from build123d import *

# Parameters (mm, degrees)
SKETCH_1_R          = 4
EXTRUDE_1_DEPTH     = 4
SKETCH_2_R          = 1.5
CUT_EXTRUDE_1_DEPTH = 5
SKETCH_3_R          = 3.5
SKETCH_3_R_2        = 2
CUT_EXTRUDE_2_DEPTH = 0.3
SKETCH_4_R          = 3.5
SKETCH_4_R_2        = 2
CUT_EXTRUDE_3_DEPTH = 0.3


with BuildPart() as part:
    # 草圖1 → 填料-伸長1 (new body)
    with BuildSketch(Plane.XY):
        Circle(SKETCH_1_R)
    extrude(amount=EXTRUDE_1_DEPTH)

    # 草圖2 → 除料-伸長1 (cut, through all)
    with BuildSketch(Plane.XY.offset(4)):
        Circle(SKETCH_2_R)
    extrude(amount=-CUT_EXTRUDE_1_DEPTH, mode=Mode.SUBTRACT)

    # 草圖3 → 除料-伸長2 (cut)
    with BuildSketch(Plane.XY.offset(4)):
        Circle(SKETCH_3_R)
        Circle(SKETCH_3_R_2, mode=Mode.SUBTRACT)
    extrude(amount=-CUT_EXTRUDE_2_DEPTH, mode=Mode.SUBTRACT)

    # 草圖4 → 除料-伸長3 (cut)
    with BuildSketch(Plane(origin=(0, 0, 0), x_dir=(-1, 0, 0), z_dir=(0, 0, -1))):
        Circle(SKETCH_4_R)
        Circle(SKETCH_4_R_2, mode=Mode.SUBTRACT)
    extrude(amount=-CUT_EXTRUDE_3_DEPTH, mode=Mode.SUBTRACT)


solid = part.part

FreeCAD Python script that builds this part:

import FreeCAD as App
import Part
import Sketcher

doc = App.newDocument("Part")
body = doc.addObject("PartDesign::Body", "Body")

sketch1 = body.newObject("Sketcher::SketchObject", "Sketch")
sketch1.AttachmentSupport = (doc.getObject("XY_Plane"), [""])
sketch1.MapMode = "FlatFace"
sketch1.addGeometry(Part.Circle(App.Vector(0, 0, 0), App.Vector(0, 0, 1), 4), False)
sketch1.addConstraint(Sketcher.Constraint("Coincident", 0, 3, -1, 1))
sketch1.addConstraint(Sketcher.Constraint("Diameter", 0, 8.0))
pad1 = body.newObject("PartDesign::Pad", "Pad")
pad1.Profile = sketch1
pad1.Length = 4

sketch2 = body.newObject("Sketcher::SketchObject", "Sketch001")
sketch2.AttachmentSupport = (doc.getObject("XY_Plane"), [""])
sketch2.MapMode = "FlatFace"
sketch2.AttachmentOffset = App.Placement(App.Vector(0, 0, 4), App.Rotation())
sketch2.addGeometry(Part.Circle(App.Vector(0, 0, 0), App.Vector(0, 0, 1), 1.5), False)
sketch2.addConstraint(Sketcher.Constraint("Coincident", 0, 3, -1, 1))
sketch2.addConstraint(Sketcher.Constraint("Diameter", 0, 3.0))
pocket1 = body.newObject("PartDesign::Pocket", "Pocket")
pocket1.Profile = sketch2
pocket1.Type = "ThroughAll"

sketch3 = body.newObject("Sketcher::SketchObject", "Sketch002")
sketch3.AttachmentSupport = (doc.getObject("XY_Plane"), [""])
sketch3.MapMode = "FlatFace"
sketch3.AttachmentOffset = App.Placement(App.Vector(0, 0, 4), App.Rotation())
sketch3.addGeometry(Part.Circle(App.Vector(0, 0, 0), App.Vector(0, 0, 1), 3.5), False)
sketch3.addGeometry(Part.Circle(App.Vector(0, 0, 0), App.Vector(0, 0, 1), 2), False)
sketch3.addConstraint(Sketcher.Constraint("Coincident", 0, 3, -1, 1))
sketch3.addConstraint(Sketcher.Constraint("Coincident", 1, 3, -1, 1))
sketch3.addConstraint(Sketcher.Constraint("Diameter", 0, 7.0))
sketch3.addConstraint(Sketcher.Constraint("Diameter", 1, 4.0))
pocket2 = body.newObject("PartDesign::Pocket", "Pocket001")
pocket2.Profile = sketch3
pocket2.Length = 0.3

sketch4 = body.newObject("Sketcher::SketchObject", "Sketch003")
sketch4.AttachmentSupport = (doc.getObject("XY_Plane"), [""])
sketch4.MapMode = "FlatFace"
sketch4.addGeometry(Part.Circle(App.Vector(0, 0, 0), App.Vector(0, 0, 1), 3.5), False)
sketch4.addGeometry(Part.Circle(App.Vector(0, 0, 0), App.Vector(0, 0, 1), 2), False)
sketch4.addConstraint(Sketcher.Constraint("Coincident", 0, 3, -1, 1))
sketch4.addConstraint(Sketcher.Constraint("Coincident", 1, 3, -1, 1))
sketch4.addConstraint(Sketcher.Constraint("Diameter", 0, 7.0))
sketch4.addConstraint(Sketcher.Constraint("Diameter", 1, 4.0))
pocket3 = body.newObject("PartDesign::Pocket", "Pocket002")
pocket3.Profile = sketch4
pocket3.Length = 0.3
pocket3.Reversed = True

doc.recompute()
